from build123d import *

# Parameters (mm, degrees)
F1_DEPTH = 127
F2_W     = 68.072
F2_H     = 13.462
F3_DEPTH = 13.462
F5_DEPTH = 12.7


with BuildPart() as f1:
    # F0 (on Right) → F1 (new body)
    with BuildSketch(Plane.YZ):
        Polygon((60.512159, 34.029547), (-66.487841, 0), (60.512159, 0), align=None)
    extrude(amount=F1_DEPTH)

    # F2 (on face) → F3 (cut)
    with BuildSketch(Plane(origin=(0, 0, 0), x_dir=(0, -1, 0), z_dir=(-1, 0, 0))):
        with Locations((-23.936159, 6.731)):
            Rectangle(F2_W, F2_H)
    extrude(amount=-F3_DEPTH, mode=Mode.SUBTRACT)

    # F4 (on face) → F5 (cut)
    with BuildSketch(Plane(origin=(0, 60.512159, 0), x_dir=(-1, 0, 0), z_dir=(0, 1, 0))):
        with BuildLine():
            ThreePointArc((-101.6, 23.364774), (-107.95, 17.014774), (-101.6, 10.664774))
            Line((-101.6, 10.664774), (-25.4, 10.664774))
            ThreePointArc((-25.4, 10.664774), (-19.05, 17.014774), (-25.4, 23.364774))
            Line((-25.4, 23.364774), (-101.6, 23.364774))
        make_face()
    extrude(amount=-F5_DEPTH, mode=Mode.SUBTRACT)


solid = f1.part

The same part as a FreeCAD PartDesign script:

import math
import FreeCAD as App
import Part
import Sketcher

V = App.Vector
Q = App.Units.Quantity

doc = App.newDocument("Part")
params = doc.addObject("Spreadsheet::Sheet", "Params")
for row, (alias, value) in enumerate([
    ("sketch1_width", "5 in"),
    ("pad1_length", "5 in"),
    ("sketch2_width", "2.68 in"),
    ("sketch2_height", "0.53 in"),
    ("pocket1_length", "0.53 in"),
    ("sketch3_width", "3 in"),
    ("sketch3_radius", "0.25 in"),
    ("pocket2_length", "0.5 in"),
], start=1):
    params.set(f"A{row}", alias)
    params.set(f"B{row}", "=" + value)
    params.setAlias(f"B{row}", alias)

body = doc.addObject("PartDesign::Body", "Body")

# Sketch on YZ plane
sketch1 = body.newObject("Sketcher::SketchObject", "Sketch")
sketch1.AttachmentSupport = (doc.getObject("YZ_Plane"), [""])
sketch1.MapMode = "FlatFace"
sketch1.addGeometry(Part.LineSegment(V(60.512159, 34.029547, 0), V(-66.487841, 0, 0)), False)
sketch1.addGeometry(Part.LineSegment(V(-66.487841, 0, 0), V(60.512159, 0, 0)), False)
sketch1.addGeometry(Part.LineSegment(V(60.512159, 0, 0), V(60.512159, 34.029547, 0)), False)
sketch1.addConstraint(Sketcher.Constraint("Coincident", 0, 2, 1, 1))
sketch1.addConstraint(Sketcher.Constraint("Coincident", 1, 2, 2, 1))
sketch1.addConstraint(Sketcher.Constraint("Coincident", 2, 2, 0, 1))
sketch1.addConstraint(Sketcher.Constraint("Horizontal", 1))
sketch1.addConstraint(Sketcher.Constraint("Vertical", 2))
sketch1.addConstraint(Sketcher.Constraint("PointOnObject", 0, 2, -1))
sketch1.addConstraint(Sketcher.Constraint("DistanceX", 1, 1, 1, 2, Q("5 in")))
sketch1.addConstraint(Sketcher.Constraint("Angle", 0, Q("-165 deg")))
sketch1.addConstraint(Sketcher.Constraint("DistanceX", 0, 2, -1, 1, 66.487841))
sketch1.setExpression("Constraints[6]", "Params.sketch1_width")
pad1 = body.newObject("PartDesign::Pad", "Pad")
pad1.Profile = sketch1
pad1.setExpression("Length", "Params.pad1_length")

# Sketch on YZ plane
sketch2 = body.newObject("Sketcher::SketchObject", "Sketch001")
sketch2.AttachmentSupport = (doc.getObject("YZ_Plane"), [""])
sketch2.MapMode = "FlatFace"
sketch2.addGeometry(Part.LineSegment(V(57.972159, 13.462, 0), V(57.972159, 0, 0)), False)
sketch2.addGeometry(Part.LineSegment(V(57.972159, 0, 0), V(-10.099841, 0, 0)), False)
sketch2.addGeometry(Part.LineSegment(V(-10.099841, 0, 0), V(-10.099841, 13.462, 0)), False)
sketch2.addGeometry(Part.LineSegment(V(-10.099841, 13.462, 0), V(57.972159, 13.462, 0)), False)
sketch2.addConstraint(Sketcher.Constraint("Coincident", 0, 2, 1, 1))
sketch2.addConstraint(Sketcher.Constraint("Coincident", 1, 2, 2, 1))
sketch2.addConstraint(Sketcher.Constraint("Coincident", 2, 2, 3, 1))
sketch2.addConstraint(Sketcher.Constraint("Coincident", 3, 2, 0, 1))
sketch2.addConstraint(Sketcher.Constraint("Vertical", 0))
sketch2.addConstraint(Sketcher.Constraint("Horizontal", 1))
sketch2.addConstraint(Sketcher.Constraint("Vertical", 2))
sketch2.addConstraint(Sketcher.Constraint("Horizontal", 3))
sketch2.addConstraint(Sketcher.Constraint("PointOnObject", 0, 2, -1))
sketch2.addConstraint(Sketcher.Constraint("DistanceX", 1, 2, 1, 1, Q("2.68 in")))
sketch2.addConstraint(Sketcher.Constraint("DistanceY", 0, 2, 0, 1, Q("0.53 in")))
sketch2.addConstraint(Sketcher.Constraint("DistanceX", -1, 1, 0, 2, 57.972159))
sketch2.setExpression("Constraints[9]", "Params.sketch2_width")
sketch2.setExpression("Constraints[10]", "Params.sketch2_height")
pocket1 = body.newObject("PartDesign::Pocket", "Pocket")
pocket1.Profile = sketch2
pocket1.setExpression("Length", "Params.pocket1_length")
pocket1.Reversed = True

# Sketch on XZ plane
sketch3 = body.newObject("Sketcher::SketchObject", "Sketch002")
sketch3.AttachmentSupport = (doc.getObject("XZ_Plane"), [""])
sketch3.MapMode = "FlatFace"
sketch3.AttachmentOffset = App.Placement(V(0, 0, -60.512159), App.Rotation())
sketch3.addGeometry(Part.ArcOfCircle(Part.Circle(V(101.6, 17.014774, 0), V(0, 0, 1), 6.35), math.radians(-90), math.radians(90)), False)
sketch3.addGeometry(Part.LineSegment(V(101.6, 10.664774, 0), V(25.4, 10.664774, 0)), False)
sketch3.addGeometry(Part.ArcOfCircle(Part.Circle(V(25.4, 17.014774, 0), V(0, 0, 1), 6.35), math.radians(90), math.radians(270)), False)
sketch3.addGeometry(Part.LineSegment(V(25.4, 23.364774, 0), V(101.6, 23.364774, 0)), False)
sketch3.addConstraint(Sketcher.Constraint("Tangent", 0, 1, 1, 1))
sketch3.addConstraint(Sketcher.Constraint("Tangent", 1, 2, 2, 2))
sketch3.addConstraint(Sketcher.Constraint("Tangent", 2, 1, 3, 1))
sketch3.addConstraint(Sketcher.Constraint("Tangent", 3, 2, 0, 2))
sketch3.addConstraint(Sketcher.Constraint("Horizontal", 1))
sketch3.addConstraint(Sketcher.Constraint("Horizontal", 3))
sketch3.addConstraint(Sketcher.Constraint("DistanceX", 1, 2, 1, 1, Q("3 in")))
sketch3.addConstraint(Sketcher.Constraint("Radius", 0, Q("0.25 in")))
sketch3.addConstraint(Sketcher.Constraint("DistanceX", -1, 1, 0, 3, Q("4 in")))
sketch3.addConstraint(Sketcher.Constraint("DistanceY", -1, 1, 0, 3, 17.014774))
sketch3.setExpression("Constraints[6]", "Params.sketch3_width")
sketch3.setExpression("Constraints[7]", "Params.sketch3_radius")
pocket2 = body.newObject("PartDesign::Pocket", "Pocket001")
pocket2.Profile = sketch3
pocket2.setExpression("Length", "Params.pocket2_length")
pocket2.Reversed = True

doc.recompute()
